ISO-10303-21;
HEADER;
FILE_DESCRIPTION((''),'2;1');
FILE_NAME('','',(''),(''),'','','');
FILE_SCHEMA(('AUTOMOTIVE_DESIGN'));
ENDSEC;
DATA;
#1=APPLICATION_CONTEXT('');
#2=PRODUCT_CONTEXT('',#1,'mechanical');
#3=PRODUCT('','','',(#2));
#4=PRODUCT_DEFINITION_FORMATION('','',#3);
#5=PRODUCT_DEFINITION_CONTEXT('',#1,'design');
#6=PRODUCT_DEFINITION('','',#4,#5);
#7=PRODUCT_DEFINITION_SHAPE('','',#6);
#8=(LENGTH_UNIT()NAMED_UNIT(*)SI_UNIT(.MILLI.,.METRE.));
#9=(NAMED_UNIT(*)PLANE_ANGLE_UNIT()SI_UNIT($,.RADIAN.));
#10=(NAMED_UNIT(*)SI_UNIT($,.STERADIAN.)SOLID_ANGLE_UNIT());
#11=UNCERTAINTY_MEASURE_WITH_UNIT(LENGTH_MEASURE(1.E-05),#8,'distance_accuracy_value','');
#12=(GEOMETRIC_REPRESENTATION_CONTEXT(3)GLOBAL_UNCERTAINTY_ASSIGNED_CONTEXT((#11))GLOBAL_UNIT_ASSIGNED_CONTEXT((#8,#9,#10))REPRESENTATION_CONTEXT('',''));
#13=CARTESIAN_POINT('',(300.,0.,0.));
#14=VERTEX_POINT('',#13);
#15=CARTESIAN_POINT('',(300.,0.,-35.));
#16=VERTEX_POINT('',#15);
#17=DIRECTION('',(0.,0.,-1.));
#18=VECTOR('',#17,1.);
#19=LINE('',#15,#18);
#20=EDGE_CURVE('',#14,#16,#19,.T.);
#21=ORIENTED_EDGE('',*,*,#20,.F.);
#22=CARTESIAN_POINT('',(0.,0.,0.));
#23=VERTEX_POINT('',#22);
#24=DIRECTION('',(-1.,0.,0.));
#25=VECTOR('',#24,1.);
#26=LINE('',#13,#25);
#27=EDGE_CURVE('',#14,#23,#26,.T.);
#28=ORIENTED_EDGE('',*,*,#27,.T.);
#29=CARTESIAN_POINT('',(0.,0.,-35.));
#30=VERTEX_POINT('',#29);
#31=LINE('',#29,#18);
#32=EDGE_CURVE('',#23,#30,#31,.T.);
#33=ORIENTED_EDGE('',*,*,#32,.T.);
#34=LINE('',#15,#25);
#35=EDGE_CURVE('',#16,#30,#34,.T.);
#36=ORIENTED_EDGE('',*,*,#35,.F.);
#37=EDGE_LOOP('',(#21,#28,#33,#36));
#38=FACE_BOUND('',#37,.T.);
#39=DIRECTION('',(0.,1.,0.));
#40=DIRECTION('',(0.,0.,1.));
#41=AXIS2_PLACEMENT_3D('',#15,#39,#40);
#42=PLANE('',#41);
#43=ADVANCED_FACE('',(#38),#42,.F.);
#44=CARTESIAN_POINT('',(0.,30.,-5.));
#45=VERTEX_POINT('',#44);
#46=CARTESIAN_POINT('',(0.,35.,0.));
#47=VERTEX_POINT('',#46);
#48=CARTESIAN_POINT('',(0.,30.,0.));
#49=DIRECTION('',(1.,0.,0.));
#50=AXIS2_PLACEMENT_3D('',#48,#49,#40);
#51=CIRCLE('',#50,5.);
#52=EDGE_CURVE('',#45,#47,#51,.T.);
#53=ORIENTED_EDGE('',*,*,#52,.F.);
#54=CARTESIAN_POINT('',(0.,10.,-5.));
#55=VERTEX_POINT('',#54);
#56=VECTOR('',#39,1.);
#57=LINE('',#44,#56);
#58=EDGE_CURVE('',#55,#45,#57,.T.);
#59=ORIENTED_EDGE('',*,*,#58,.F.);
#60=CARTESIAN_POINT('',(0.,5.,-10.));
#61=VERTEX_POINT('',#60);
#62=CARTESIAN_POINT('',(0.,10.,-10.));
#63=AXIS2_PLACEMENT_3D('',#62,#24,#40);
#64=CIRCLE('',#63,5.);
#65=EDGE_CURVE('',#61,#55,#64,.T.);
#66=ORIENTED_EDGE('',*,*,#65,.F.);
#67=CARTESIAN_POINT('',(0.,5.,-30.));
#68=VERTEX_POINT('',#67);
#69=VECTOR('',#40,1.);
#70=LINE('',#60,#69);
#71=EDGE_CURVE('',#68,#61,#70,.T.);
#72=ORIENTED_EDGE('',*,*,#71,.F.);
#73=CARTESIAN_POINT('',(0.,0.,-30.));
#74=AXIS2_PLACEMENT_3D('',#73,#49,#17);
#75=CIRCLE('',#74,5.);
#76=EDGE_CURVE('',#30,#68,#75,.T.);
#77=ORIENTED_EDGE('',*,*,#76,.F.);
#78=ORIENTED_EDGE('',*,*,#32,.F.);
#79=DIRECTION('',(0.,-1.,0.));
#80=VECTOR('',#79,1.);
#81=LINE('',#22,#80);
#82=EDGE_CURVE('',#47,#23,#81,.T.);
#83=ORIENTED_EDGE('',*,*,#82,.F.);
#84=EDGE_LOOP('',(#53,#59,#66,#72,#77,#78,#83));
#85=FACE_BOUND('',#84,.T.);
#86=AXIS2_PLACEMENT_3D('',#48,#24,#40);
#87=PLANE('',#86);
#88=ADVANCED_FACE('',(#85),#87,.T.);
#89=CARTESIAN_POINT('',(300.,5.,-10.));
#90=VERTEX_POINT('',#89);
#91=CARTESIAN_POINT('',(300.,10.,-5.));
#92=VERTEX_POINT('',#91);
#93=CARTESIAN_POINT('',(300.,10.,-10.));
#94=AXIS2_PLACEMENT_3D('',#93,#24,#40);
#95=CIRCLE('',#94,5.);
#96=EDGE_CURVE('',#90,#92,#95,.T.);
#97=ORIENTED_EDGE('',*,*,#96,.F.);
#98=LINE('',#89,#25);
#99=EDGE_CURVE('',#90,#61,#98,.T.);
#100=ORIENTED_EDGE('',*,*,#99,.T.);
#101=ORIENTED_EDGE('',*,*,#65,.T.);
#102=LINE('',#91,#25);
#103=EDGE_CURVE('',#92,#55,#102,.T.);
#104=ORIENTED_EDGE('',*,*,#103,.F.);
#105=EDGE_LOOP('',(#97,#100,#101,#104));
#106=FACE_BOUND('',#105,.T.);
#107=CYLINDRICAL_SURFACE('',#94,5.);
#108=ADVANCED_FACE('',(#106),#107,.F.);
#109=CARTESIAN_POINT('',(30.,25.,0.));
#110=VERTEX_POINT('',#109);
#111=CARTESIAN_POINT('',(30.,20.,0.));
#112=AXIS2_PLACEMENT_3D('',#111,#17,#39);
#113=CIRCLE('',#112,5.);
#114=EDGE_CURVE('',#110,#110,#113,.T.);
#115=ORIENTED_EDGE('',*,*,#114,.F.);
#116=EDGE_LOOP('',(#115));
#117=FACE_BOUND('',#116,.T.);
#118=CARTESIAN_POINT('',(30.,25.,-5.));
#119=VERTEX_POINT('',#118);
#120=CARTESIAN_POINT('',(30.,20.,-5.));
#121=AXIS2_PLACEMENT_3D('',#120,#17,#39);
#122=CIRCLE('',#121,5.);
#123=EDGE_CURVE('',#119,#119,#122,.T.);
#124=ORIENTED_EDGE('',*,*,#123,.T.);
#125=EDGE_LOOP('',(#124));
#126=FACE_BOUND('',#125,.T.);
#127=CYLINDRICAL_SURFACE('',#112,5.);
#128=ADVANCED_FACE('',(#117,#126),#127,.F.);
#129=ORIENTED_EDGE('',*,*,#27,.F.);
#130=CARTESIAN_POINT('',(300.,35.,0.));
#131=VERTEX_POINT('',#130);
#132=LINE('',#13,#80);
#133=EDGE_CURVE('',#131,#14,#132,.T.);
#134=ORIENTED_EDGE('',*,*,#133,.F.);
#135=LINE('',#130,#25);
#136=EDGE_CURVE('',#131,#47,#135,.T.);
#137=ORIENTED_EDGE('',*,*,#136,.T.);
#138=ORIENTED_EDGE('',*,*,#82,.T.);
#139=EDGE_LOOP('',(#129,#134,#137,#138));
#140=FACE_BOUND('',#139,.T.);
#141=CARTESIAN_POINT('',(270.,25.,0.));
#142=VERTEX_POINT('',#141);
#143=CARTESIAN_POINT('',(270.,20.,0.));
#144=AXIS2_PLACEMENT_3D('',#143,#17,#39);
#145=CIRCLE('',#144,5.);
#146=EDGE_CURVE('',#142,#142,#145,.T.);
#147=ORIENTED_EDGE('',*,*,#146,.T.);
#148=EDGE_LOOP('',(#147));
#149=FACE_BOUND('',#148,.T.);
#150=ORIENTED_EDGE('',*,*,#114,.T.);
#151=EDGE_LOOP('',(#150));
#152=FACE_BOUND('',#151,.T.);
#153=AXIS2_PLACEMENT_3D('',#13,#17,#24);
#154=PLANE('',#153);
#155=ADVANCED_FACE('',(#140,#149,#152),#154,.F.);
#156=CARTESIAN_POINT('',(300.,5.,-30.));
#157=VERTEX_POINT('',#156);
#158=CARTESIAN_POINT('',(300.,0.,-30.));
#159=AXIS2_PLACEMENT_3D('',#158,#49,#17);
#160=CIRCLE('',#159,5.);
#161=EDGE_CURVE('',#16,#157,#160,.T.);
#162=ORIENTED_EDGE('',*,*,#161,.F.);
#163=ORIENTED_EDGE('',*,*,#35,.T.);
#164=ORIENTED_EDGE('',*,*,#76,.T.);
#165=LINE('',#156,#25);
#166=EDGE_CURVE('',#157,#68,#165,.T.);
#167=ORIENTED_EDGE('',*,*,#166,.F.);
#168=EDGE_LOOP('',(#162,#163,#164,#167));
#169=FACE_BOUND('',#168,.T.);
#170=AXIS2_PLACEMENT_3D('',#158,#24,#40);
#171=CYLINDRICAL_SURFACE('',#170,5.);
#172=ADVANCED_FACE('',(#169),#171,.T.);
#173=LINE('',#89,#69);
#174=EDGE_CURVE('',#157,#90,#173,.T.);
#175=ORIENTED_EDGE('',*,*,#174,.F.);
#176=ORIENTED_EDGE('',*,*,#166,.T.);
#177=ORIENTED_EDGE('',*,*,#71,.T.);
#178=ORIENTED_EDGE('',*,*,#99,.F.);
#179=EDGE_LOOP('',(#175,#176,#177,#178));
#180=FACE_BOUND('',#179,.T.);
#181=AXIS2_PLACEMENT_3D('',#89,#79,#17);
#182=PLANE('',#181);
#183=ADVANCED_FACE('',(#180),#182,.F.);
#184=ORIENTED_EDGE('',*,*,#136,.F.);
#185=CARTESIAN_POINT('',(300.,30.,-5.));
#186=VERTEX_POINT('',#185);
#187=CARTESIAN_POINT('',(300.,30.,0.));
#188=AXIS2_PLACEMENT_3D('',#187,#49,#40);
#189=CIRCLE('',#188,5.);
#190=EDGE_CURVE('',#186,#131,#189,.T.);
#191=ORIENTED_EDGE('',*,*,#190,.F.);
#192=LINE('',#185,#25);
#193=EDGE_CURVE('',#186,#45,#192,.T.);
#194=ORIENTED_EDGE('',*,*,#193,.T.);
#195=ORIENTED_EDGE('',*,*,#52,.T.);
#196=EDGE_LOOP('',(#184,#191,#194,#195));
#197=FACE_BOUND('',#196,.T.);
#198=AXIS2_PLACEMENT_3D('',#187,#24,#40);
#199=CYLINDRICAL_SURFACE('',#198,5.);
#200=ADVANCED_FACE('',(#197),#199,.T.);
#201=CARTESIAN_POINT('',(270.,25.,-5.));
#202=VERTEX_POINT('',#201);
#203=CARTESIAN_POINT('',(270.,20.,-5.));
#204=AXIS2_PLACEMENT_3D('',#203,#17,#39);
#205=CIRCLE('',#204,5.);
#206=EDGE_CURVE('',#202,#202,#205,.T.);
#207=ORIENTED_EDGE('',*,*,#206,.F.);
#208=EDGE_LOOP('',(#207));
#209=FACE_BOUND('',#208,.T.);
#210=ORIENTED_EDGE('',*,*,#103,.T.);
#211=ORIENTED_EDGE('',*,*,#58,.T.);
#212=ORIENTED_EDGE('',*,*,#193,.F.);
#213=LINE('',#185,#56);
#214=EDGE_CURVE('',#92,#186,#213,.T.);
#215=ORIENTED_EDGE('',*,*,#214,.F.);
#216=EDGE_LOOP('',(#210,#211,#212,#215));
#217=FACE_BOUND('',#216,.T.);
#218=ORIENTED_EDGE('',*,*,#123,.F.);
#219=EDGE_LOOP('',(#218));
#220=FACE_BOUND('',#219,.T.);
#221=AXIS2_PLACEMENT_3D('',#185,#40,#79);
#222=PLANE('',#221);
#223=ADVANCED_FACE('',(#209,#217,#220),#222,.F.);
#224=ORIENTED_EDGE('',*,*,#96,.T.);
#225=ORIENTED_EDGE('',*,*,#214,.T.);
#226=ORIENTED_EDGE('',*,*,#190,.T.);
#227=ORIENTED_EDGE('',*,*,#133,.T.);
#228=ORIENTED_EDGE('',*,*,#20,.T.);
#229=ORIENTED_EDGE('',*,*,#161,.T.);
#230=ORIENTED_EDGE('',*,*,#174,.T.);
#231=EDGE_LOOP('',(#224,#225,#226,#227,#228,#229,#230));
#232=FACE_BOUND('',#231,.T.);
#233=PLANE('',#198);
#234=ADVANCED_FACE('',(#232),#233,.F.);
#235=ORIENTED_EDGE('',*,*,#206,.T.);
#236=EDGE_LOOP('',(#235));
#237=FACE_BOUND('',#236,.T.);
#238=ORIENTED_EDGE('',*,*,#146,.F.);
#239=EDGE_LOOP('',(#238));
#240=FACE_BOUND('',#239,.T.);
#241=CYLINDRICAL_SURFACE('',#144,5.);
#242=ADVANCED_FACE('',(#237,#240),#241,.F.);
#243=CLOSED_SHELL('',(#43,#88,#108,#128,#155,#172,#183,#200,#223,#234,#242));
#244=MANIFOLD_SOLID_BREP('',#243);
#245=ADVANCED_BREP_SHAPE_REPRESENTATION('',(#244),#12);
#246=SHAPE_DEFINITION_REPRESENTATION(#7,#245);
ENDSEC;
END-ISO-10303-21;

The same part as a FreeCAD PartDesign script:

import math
import FreeCAD as App
import Part
import Sketcher

V = App.Vector

doc = App.newDocument("Part")
body = doc.addObject("PartDesign::Body", "Body")

# Sketch on YZ plane
sketch1 = doc.addObject("Sketcher::SketchObject", "Sketch")
body.addObject(sketch1)
sketch1.AttachmentSupport = (doc.YZ_Plane, [""])
sketch1.MapMode = "FlatFace"
sketch1.addGeometry(Part.LineSegment(V(35, 0, 0), V(0, 0, 0)), False)
sketch1.addGeometry(Part.LineSegment(V(0, 0, 0), V(0, -35, 0)), False)
sketch1.addGeometry(Part.ArcOfCircle(Part.Circle(V(0, -30, 0), V(0, 0, 1), 5), math.radians(-90), math.radians(0)), False)
sketch1.addGeometry(Part.LineSegment(V(5, -30, 0), V(5, -10, 0)), False)
sketch1.addGeometry(Part.ArcOfCircle(Part.Circle(V(10, -10, 0), V(0, 0, 1), 5), math.radians(90), math.radians(180)), False)
sketch1.addGeometry(Part.LineSegment(V(10, -5, 0), V(30, -5, 0)), False)
sketch1.addGeometry(Part.ArcOfCircle(Part.Circle(V(30, 0, 0), V(0, 0, 1), 5), math.radians(-90), math.radians(0)), False)
sketch1.addConstraint(Sketcher.Constraint("Coincident", 0, 2, 1, 1))
sketch1.addConstraint(Sketcher.Constraint("Coincident", 1, 2, 2, 1))
sketch1.addConstraint(Sketcher.Constraint("Tangent", 2, 2, 3, 1))
sketch1.addConstraint(Sketcher.Constraint("Tangent", 3, 2, 4, 2))
sketch1.addConstraint(Sketcher.Constraint("Tangent", 4, 1, 5, 1))
sketch1.addConstraint(Sketcher.Constraint("Tangent", 5, 2, 6, 1))
sketch1.addConstraint(Sketcher.Constraint("Coincident", 6, 2, 0, 1))
sketch1.addConstraint(Sketcher.Constraint("Horizontal", 0))
sketch1.addConstraint(Sketcher.Constraint("Vertical", 1))
sketch1.addConstraint(Sketcher.Constraint("Vertical", 3))
sketch1.addConstraint(Sketcher.Constraint("Horizontal", 5))
sketch1.addConstraint(Sketcher.Constraint("Coincident", 0, 2, -1, 1))
sketch1.addConstraint(Sketcher.Constraint("Equal", 2, 4))
sketch1.addConstraint(Sketcher.Constraint("Equal", 4, 6))
sketch1.addConstraint(Sketcher.Constraint("PointOnObject", 2, 3, -2))
sketch1.addConstraint(Sketcher.Constraint("PointOnObject", 6, 3, -1))
sketch1.addConstraint(Sketcher.Constraint("Equal", 0, 1))
sketch1.addConstraint(Sketcher.Constraint("Radius", 2, 5.0))
sketch1.addConstraint(Sketcher.Constraint("DistanceX", 0, 2, 0, 1, 35.0))
pad1 = doc.addObject("PartDesign::Pad", "Pad")
body.addObject(pad1)
pad1.Profile = sketch1
pad1.Length = 300

# Sketch on XY plane
sketch2 = doc.addObject("Sketcher::SketchObject", "Sketch001")
body.addObject(sketch2)
sketch2.AttachmentSupport = (doc.XY_Plane, [""])
sketch2.MapMode = "FlatFace"
sketch2.AttachmentOffset = App.Placement(V(0, 0, -5), App.Rotation())
sketch2.addGeometry(Part.Circle(V(270, 20, 0), V(0, 0, 1), 5), False)
sketch2.addGeometry(Part.Circle(V(30, 20, 0), V(0, 0, 1), 5), False)
sketch2.addConstraint(Sketcher.Constraint("Equal", 0, 1))
sketch2.addConstraint(Sketcher.Constraint("Horizontal", 0, 3, 1, 3))
sketch2.addConstraint(Sketcher.Constraint("Diameter", 0, 10.0))
sketch2.addConstraint(Sketcher.Constraint("DistanceX", -1, 1, 0, 3, 270.0))
sketch2.addConstraint(Sketcher.Constraint("DistanceY", -1, 1, 0, 3, 20.0))
sketch2.addConstraint(Sketcher.Constraint("DistanceX", -1, 1, 1, 3, 30.0))
pocket1 = doc.addObject("PartDesign::Pocket", "Pocket")
body.addObject(pocket1)
pocket1.Profile = sketch2
pocket1.Type = "ThroughAll"
pocket1.Reversed = True

doc.recompute()
